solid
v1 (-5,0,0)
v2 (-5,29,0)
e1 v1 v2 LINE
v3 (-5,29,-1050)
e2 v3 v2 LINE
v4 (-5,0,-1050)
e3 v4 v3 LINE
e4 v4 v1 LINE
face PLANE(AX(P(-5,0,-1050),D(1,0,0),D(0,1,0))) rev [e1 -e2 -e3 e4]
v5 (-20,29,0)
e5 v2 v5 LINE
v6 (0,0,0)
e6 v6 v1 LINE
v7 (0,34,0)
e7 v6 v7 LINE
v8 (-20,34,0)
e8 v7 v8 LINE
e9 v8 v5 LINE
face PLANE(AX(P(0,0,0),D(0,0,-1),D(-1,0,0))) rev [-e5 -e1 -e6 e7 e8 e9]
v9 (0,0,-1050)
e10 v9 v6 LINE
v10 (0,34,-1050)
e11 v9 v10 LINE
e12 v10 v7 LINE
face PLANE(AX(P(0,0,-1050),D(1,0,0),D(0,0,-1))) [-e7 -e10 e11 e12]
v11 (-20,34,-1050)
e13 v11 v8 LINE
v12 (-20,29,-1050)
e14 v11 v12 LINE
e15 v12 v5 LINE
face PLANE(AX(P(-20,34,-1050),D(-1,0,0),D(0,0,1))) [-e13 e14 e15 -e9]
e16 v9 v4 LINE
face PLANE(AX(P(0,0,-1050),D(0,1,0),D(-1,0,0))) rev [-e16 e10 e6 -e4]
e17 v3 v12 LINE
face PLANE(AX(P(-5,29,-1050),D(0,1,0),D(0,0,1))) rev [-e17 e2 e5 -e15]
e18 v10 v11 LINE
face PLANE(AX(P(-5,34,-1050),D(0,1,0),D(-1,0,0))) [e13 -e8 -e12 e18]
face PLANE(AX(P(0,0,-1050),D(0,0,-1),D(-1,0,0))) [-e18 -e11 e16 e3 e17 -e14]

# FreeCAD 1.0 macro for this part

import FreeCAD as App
import Part
import Sketcher

V = App.Vector


def add_polygon(sketch, points):
    """Adds a closed chain of lines whose ends are joined by coincident constraints."""
    first, n = sketch.GeometryCount, len(points)
    for a, b in zip(points, points[1:] + points[:1]):
        sketch.addGeometry(Part.LineSegment(App.Vector(*a, 0), App.Vector(*b, 0)), False)
    for i in range(n):
        sketch.addConstraint(Sketcher.Constraint("Coincident", first + i, 2, first + (i + 1) % n, 1))

doc = App.newDocument("Part")
params = doc.addObject("Spreadsheet::Sheet", "Params")
for row, (alias, value) in enumerate([
    ("sketch1_width", "5 mm"),
    ("sketch1_width2", "20 mm"),
    ("sketch1_height", "34 mm"),
    ("pad1_length", "1050 mm"),
], start=1):
    params.set(f"A{row}", alias)
    params.set(f"B{row}", "=" + value)
    params.setAlias(f"B{row}", alias)

body = doc.addObject("PartDesign::Body", "Body")

sketch1 = body.newObject("Sketcher::SketchObject", "Sketch")
sketch1.AttachmentSupport = (doc.getObject("XY_Plane"), [""])
sketch1.MapMode = "FlatFace"
add_polygon(sketch1, [(-5, 0), (0, 0), (0, 34), (-20, 34), (-20, 29), (-5, 29)])
sketch1.addConstraint([
    Sketcher.Constraint("Horizontal", 0),
    Sketcher.Constraint("Vertical", 1),
    Sketcher.Constraint("Horizontal", 2),
    Sketcher.Constraint("Vertical", 3),
    Sketcher.Constraint("Horizontal", 4),
    Sketcher.Constraint("Vertical", 5),
    Sketcher.Constraint("Coincident", 0, 2, -1, 1),
    Sketcher.Constraint("Equal", 0, 3),
    Sketcher.Constraint("DistanceX", 0, 1, 0, 2, 5.0),
    Sketcher.Constraint("DistanceX", 2, 2, 2, 1, 20.0),
    Sketcher.Constraint("DistanceY", 1, 1, 1, 2, 34.0),
])
sketch1.setExpression("Constraints[14]", "Params.sketch1_width")
sketch1.setExpression("Constraints[15]", "Params.sketch1_width2")
sketch1.setExpression("Constraints[16]", "Params.sketch1_height")
pad1 = body.newObject("PartDesign::Pad", "Pad")
pad1.Profile = sketch1
pad1.setExpression("Length", "Params.pad1_length")
pad1.Reversed = True

doc.recompute()
